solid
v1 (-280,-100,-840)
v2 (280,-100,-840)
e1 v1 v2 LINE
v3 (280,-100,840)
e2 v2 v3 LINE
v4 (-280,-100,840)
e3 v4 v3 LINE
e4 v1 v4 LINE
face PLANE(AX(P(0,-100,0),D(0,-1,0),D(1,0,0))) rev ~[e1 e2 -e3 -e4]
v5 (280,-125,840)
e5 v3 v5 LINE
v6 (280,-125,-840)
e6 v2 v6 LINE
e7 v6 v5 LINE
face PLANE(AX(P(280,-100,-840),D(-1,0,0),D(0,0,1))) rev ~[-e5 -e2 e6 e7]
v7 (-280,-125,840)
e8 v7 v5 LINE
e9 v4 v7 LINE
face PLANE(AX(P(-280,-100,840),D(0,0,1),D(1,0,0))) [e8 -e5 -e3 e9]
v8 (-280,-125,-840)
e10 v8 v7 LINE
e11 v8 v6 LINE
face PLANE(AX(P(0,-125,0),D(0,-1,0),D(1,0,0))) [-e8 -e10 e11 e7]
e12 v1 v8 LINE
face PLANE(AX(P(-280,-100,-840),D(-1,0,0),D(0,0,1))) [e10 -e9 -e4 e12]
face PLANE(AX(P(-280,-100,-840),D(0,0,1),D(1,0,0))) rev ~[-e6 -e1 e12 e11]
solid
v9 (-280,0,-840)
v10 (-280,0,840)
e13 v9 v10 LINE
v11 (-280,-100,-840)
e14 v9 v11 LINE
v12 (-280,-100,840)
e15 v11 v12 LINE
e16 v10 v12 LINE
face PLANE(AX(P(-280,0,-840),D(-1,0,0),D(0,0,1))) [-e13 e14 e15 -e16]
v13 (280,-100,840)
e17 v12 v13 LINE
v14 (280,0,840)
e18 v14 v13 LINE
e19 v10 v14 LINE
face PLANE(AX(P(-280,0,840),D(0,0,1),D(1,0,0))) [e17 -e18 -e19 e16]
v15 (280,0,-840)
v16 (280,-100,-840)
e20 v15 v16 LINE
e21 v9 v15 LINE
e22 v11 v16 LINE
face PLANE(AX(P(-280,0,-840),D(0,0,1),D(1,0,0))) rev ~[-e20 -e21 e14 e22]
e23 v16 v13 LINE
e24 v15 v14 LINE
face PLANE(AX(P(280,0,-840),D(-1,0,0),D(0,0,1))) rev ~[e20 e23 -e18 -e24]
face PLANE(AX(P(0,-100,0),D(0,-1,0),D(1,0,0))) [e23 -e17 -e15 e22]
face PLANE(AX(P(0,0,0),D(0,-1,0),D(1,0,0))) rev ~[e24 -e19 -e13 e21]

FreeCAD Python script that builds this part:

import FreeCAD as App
import Part
import Sketcher
from FreeCAD import Vector
Q = App.Units.Quantity

doc = App.newDocument("Part")
body = doc.addObject("PartDesign::Body", "Body")

sketch1 = body.newObject("Sketcher::SketchObject", "Sketch")
sketch1.AttachmentSupport = (doc.getObject("XZ_Plane"), [""])
sketch1.MapMode = "FlatFace"
sketch1.addGeometry([
    Part.LineSegment(Vector(-280, 840, 0), Vector(-280, -840, 0)),
    Part.LineSegment(Vector(-280, -840, 0), Vector(280, -840, 0)),
    Part.LineSegment(Vector(280, -840, 0), Vector(280, 840, 0)),
    Part.LineSegment(Vector(280, 840, 0), Vector(-280, 840, 0)),
], False)
sketch1.addConstraint([
    Sketcher.Constraint("Coincident", 0, 2, 1, 1),
    Sketcher.Constraint("Coincident", 1, 2, 2, 1),
    Sketcher.Constraint("Coincident", 2, 2, 3, 1),
    Sketcher.Constraint("Coincident", 3, 2, 0, 1),
    Sketcher.Constraint("Vertical", 0),
    Sketcher.Constraint("Horizontal", 1),
    Sketcher.Constraint("Vertical", 2),
    Sketcher.Constraint("Horizontal", 3),
    Sketcher.Constraint("Symmetric", 0, 2, 2, 2, -1, 1),
    Sketcher.Constraint("DistanceX", 1, 1, 1, 2, Q("560 mm")),
    Sketcher.Constraint("DistanceY", 0, 2, 0, 1, Q("1680 mm")),
])
pad1 = body.newObject("PartDesign::Pad", "Pad")
pad1.Profile = sketch1
pad1.Length = 100
body2 = doc.addObject("PartDesign::Body", "Body001")

sketch2 = body2.newObject("Sketcher::SketchObject", "Sketch001")
sketch2.AttachmentSupport = (doc.getObject("XZ_Plane001"), [""])
sketch2.MapMode = "FlatFace"
sketch2.AttachmentOffset = App.Placement(Vector(0, 0, 100), App.Rotation())
sketch2.addGeometry([
    Part.LineSegment(Vector(-280, 840, 0), Vector(-280, -840, 0)),
    Part.LineSegment(Vector(-280, -840, 0), Vector(280, -840, 0)),
    Part.LineSegment(Vector(280, -840, 0), Vector(280, 840, 0)),
    Part.LineSegment(Vector(280, 840, 0), Vector(-280, 840, 0)),
], False)
sketch2.addConstraint([
    Sketcher.Constraint("Coincident", 0, 2, 1, 1),
    Sketcher.Constraint("Coincident", 1, 2, 2, 1),
    Sketcher.Constraint("Coincident", 2, 2, 3, 1),
    Sketcher.Constraint("Coincident", 3, 2, 0, 1),
    Sketcher.Constraint("Vertical", 0),
    Sketcher.Constraint("Horizontal", 1),
    Sketcher.Constraint("Vertical", 2),
    Sketcher.Constraint("Horizontal", 3),
    Sketcher.Constraint("Symmetric", 0, 2, 2, 2, -1, 1),
    Sketcher.Constraint("DistanceX", 1, 1, 1, 2, Q("560 mm")),
    Sketcher.Constraint("DistanceY", 0, 2, 0, 1, Q("1680 mm")),
])
pad2 = body2.newObject("PartDesign::Pad", "Pad001")
pad2.Profile = sketch2
pad2.Length = 25

doc.recompute()
